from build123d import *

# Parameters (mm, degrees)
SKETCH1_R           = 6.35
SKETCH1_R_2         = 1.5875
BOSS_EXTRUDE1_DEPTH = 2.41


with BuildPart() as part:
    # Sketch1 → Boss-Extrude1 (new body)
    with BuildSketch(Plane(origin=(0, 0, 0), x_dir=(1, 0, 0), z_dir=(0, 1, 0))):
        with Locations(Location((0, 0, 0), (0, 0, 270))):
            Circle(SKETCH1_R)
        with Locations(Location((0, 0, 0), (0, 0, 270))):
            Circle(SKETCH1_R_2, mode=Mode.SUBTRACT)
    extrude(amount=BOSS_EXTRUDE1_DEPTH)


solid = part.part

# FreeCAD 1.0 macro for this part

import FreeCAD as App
import Part
import Sketcher

V = App.Vector
Q = App.Units.Quantity

doc = App.newDocument("Part")
body = doc.addObject("PartDesign::Body", "Body")

sketch1 = doc.addObject("Sketcher::SketchObject", "Sketch")
body.addObject(sketch1)
sketch1.AttachmentSupport = (doc.XZ_Plane, [""])
sketch1.MapMode = "FlatFace"
sketch1.addGeometry([
    Part.Circle(V(0, 0, 0), V(0, 0, 1), 6.3),
    Part.Circle(V(0, 0, 0), V(0, 0, 1), 1.6),
], False)
sketch1.addConstraint([
    Sketcher.Constraint("Coincident", 0, 3, -1, 1),
    Sketcher.Constraint("Coincident", 1, 3, -1, 1),
    Sketcher.Constraint("Diameter", 0, Q("0.5 in")),
    Sketcher.Constraint("Diameter", 1, Q("0.125 in")),
])
pad1 = doc.addObject("PartDesign::Pad", "Pad")
body.addObject(pad1)
pad1.Profile = sketch1
pad1.Length = 2.41
pad1.Reversed = True

doc.recompute()
